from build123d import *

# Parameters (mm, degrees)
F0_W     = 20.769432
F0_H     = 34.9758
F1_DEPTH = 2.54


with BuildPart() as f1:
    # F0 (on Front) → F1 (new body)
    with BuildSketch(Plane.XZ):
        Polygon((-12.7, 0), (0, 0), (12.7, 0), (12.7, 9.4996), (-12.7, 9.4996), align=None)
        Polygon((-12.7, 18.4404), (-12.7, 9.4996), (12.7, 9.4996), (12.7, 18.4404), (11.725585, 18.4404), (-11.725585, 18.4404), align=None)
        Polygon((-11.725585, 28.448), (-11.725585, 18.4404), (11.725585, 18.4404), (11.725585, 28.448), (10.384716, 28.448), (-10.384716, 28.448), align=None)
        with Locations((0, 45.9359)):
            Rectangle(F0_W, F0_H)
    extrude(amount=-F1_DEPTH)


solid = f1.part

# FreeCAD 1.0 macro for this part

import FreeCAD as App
import Part
import Sketcher

V = App.Vector
Q = App.Units.Quantity

doc = App.newDocument("Part")
body = doc.addObject("PartDesign::Body", "Body")

sketch1 = body.newObject("Sketcher::SketchObject", "Sketch")
sketch1.AttachmentSupport = (doc.getObject("XZ_Plane"), [""])
sketch1.MapMode = "FlatFace"
sketch1.addGeometry([
    Part.LineSegment(V(-12.7, 0, 0), V(12.7, 0, 0)),
    Part.LineSegment(V(12.7, 0, 0), V(12.7, 18.4404, 0)),
    Part.LineSegment(V(12.7, 18.4404, 0), V(11.725585, 18.4404, 0)),
    Part.LineSegment(V(11.725585, 18.4404, 0), V(11.725585, 28.448, 0)),
    Part.LineSegment(V(11.725585, 28.448, 0), V(10.384716, 28.448, 0)),
    Part.LineSegment(V(10.384716, 28.448, 0), V(10.384716, 63.4238, 0)),
    Part.LineSegment(V(10.384716, 63.4238, 0), V(-10.384716, 63.4238, 0)),
    Part.LineSegment(V(-10.384716, 63.4238, 0), V(-10.384716, 28.448, 0)),
    Part.LineSegment(V(-10.384716, 28.448, 0), V(-11.725585, 28.448, 0)),
    Part.LineSegment(V(-11.725585, 28.448, 0), V(-11.725585, 18.4404, 0)),
    Part.LineSegment(V(-11.725585, 18.4404, 0), V(-12.7, 18.4404, 0)),
    Part.LineSegment(V(-12.7, 18.4404, 0), V(-12.7, 0, 0)),
], False)
sketch1.addConstraint([
    Sketcher.Constraint("Coincident", 0, 2, 1, 1),
    Sketcher.Constraint("Coincident", 1, 2, 2, 1),
    Sketcher.Constraint("Coincident", 2, 2, 3, 1),
    Sketcher.Constraint("Coincident", 3, 2, 4, 1),
    Sketcher.Constraint("Coincident", 4, 2, 5, 1),
    Sketcher.Constraint("Coincident", 5, 2, 6, 1),
    Sketcher.Constraint("Coincident", 6, 2, 7, 1),
    Sketcher.Constraint("Coincident", 7, 2, 8, 1),
    Sketcher.Constraint("Coincident", 8, 2, 9, 1),
    Sketcher.Constraint("Coincident", 9, 2, 10, 1),
    Sketcher.Constraint("Coincident", 10, 2, 11, 1),
    Sketcher.Constraint("Coincident", 11, 2, 0, 1),
    Sketcher.Constraint("Horizontal", 0),
    Sketcher.Constraint("Vertical", 1),
    Sketcher.Constraint("Horizontal", 2),
    Sketcher.Constraint("Vertical", 3),
    Sketcher.Constraint("Horizontal", 4),
    Sketcher.Constraint("Vertical", 5),
    Sketcher.Constraint("Horizontal", 6),
    Sketcher.Constraint("Vertical", 7),
    Sketcher.Constraint("Horizontal", 8),
    Sketcher.Constraint("Vertical", 9),
    Sketcher.Constraint("Horizontal", 10),
    Sketcher.Constraint("Vertical", 11),
    Sketcher.Constraint("Symmetric", 0, 2, 11, 2, -1, 1),
    Sketcher.Constraint("Symmetric", 4, 2, 7, 2, -2),
    Sketcher.Constraint("Symmetric", 2, 2, 9, 2, -2),
    Sketcher.Constraint("DistanceX", 0, 1, 0, 2, Q("1 in")),
    Sketcher.Constraint("DistanceY", 1, 1, 1, 2, Q("0.726 in")),
    Sketcher.Constraint("DistanceY", 3, 1, 3, 2, Q("0.394 in")),
    Sketcher.Constraint("DistanceY", 5, 1, 5, 2, Q("1.377 in")),
    Sketcher.Constraint("DistanceX", 4, 2, 4, 1, 1.340869),
    Sketcher.Constraint("DistanceX", 6, 2, 6, 1, 20.769432),
])
pad1 = body.newObject("PartDesign::Pad", "Pad")
pad1.Profile = sketch1
pad1.Length = Q("0.1 in")
pad1.Reversed = True

doc.recompute()
